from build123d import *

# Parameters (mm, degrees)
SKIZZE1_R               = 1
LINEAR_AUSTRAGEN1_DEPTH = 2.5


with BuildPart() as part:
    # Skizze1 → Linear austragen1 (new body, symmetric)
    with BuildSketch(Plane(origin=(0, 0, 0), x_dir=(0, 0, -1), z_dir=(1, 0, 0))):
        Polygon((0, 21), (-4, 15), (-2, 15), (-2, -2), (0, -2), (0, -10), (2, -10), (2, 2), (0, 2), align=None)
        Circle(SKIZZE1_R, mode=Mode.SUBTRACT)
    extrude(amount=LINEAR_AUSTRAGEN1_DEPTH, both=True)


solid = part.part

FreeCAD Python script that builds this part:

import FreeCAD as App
import Part
import Sketcher

V = App.Vector

doc = App.newDocument("Part")
body = doc.addObject("PartDesign::Body", "Body")

# Sketch on YZ plane
sketch1 = body.newObject("Sketcher::SketchObject", "Sketch")
sketch1.AttachmentSupport = (doc.getObject("YZ_Plane"), [""])
sketch1.MapMode = "FlatFace"
sketch1.addGeometry([
    Part.LineSegment(V(21, 0, 0), V(15, 4, 0)),  # 0
    Part.LineSegment(V(15, 4, 0), V(15, 2, 0)),  # 1
    Part.LineSegment(V(15, 2, 0), V(-2, 2, 0)),  # 2
    Part.LineSegment(V(-2, 2, 0), V(-2, 0, 0)),  # 3
    Part.LineSegment(V(-2, 0, 0), V(-10, 0, 0)),  # 4
    Part.LineSegment(V(-10, 0, 0), V(-10, -2, 0)),  # 5
    Part.LineSegment(V(-10, -2, 0), V(2, -2, 0)),  # 6
    Part.LineSegment(V(2, -2, 0), V(2, 0, 0)),  # 7
    Part.LineSegment(V(2, 0, 0), V(21, 0, 0)),  # 8
    Part.Circle(V(0, 0, 0), V(0, 0, 1), 1),  # 9
], False)
sketch1.addConstraint([
    Sketcher.Constraint("Coincident", 0, 2, 1, 1),
    Sketcher.Constraint("Coincident", 1, 2, 2, 1),
    Sketcher.Constraint("Coincident", 2, 2, 3, 1),
    Sketcher.Constraint("Coincident", 3, 2, 4, 1),
    Sketcher.Constraint("Coincident", 4, 2, 5, 1),
    Sketcher.Constraint("Coincident", 5, 2, 6, 1),
    Sketcher.Constraint("Coincident", 6, 2, 7, 1),
    Sketcher.Constraint("Coincident", 7, 2, 8, 1),
    Sketcher.Constraint("Coincident", 8, 2, 0, 1),
    Sketcher.Constraint("Vertical", 1),
    Sketcher.Constraint("Horizontal", 2),
    Sketcher.Constraint("Vertical", 3),
    Sketcher.Constraint("Horizontal", 4),
    Sketcher.Constraint("Vertical", 5),
    Sketcher.Constraint("Horizontal", 6),
    Sketcher.Constraint("Vertical", 7),
    Sketcher.Constraint("Horizontal", 8),
    Sketcher.Constraint("Coincident", 9, 3, -1, 1),
    Sketcher.Constraint("Symmetric", 2, 2, 6, 2, -1, 1),
    Sketcher.Constraint("PointOnObject", 3, 2, -1),
    Sketcher.Constraint("PointOnObject", 7, 2, -1),
    Sketcher.Constraint("Equal", 1, 3),
    Sketcher.Constraint("Diameter", 9, 2.0),
    Sketcher.Constraint("DistanceX", 2, 2, 2, 1, 17.0),
    Sketcher.Constraint("DistanceX", 4, 2, 4, 1, 8.0),
    Sketcher.Constraint("DistanceX", 6, 1, 6, 2, 12.0),
    Sketcher.Constraint("DistanceX", 8, 1, 8, 2, 19.0),
    Sketcher.Constraint("DistanceY", 1, 2, 1, 1, 2.0),
])
pad1 = body.newObject("PartDesign::Pad", "Pad")
pad1.Profile = sketch1
pad1.Length = 5
pad1.Midplane = True

doc.recompute()
